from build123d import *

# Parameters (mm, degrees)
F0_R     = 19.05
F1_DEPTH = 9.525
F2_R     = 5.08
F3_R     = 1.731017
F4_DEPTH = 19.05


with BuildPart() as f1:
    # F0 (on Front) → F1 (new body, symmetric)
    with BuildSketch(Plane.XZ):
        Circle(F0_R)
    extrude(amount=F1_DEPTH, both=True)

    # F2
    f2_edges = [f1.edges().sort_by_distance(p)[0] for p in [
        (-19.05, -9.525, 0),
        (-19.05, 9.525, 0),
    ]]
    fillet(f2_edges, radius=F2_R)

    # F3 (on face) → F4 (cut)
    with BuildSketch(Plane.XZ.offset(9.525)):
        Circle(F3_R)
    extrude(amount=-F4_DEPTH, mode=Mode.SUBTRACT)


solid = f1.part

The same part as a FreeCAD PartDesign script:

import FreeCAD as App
import Part
import Sketcher
from FreeCAD import Vector
Q = App.Units.Quantity


def edges_at(feature, points):
    """Names of the edges that pass closest to the given points."""
    edges = feature.Shape.Edges
    near = lambda p: min(range(len(edges)), key=lambda i: edges[i].distToShape(Part.Vertex(*p))[0])
    return sorted({f"Edge{near(p) + 1}" for p in points})

doc = App.newDocument("Part")
body = doc.addObject("PartDesign::Body", "Body")

sketch1 = body.newObject("Sketcher::SketchObject", "Sketch")
sketch1.AttachmentSupport = (doc.getObject("XZ_Plane"), [""])
sketch1.MapMode = "FlatFace"
sketch1.addGeometry(Part.Circle(Vector(0, 0, 0), Vector(0, 0, 1), 19.05), False)
sketch1.addConstraint([
    Sketcher.Constraint("Coincident", 0, 3, -1, 1),
    Sketcher.Constraint("Diameter", 0, Q("1.5 in")),
])
pad1 = body.newObject("PartDesign::Pad", "Pad")
pad1.Profile = sketch1
pad1.Length = Q("0.75 in")
pad1.Midplane = True
doc.recompute()

fillet = body.newObject("PartDesign::Fillet", "Fillet")
fillet.Base = (pad1, edges_at(pad1, [(-19.05, -9.525, 0), (-19.05, 9.525, 0)]))
fillet.Radius = Q("0.2 in")

sketch2 = body.newObject("Sketcher::SketchObject", "Sketch001")
sketch2.AttachmentSupport = (doc.getObject("XZ_Plane"), [""])
sketch2.MapMode = "FlatFace"
sketch2.AttachmentOffset = App.Placement(Vector(0, 0, 0.375 * 25.4), App.Rotation())
sketch2.addGeometry(Part.Circle(Vector(0, 0, 0), Vector(0, 0, 1), 1.731017), False)
sketch2.addConstraint([
    Sketcher.Constraint("Coincident", 0, 3, -1, 1),
    Sketcher.Constraint("Diameter", 0, 3.462034),
])
pocket1 = body.newObject("PartDesign::Pocket", "Pocket")
pocket1.Profile = sketch2
pocket1.Length = Q("0.75 in")

doc.recompute()
